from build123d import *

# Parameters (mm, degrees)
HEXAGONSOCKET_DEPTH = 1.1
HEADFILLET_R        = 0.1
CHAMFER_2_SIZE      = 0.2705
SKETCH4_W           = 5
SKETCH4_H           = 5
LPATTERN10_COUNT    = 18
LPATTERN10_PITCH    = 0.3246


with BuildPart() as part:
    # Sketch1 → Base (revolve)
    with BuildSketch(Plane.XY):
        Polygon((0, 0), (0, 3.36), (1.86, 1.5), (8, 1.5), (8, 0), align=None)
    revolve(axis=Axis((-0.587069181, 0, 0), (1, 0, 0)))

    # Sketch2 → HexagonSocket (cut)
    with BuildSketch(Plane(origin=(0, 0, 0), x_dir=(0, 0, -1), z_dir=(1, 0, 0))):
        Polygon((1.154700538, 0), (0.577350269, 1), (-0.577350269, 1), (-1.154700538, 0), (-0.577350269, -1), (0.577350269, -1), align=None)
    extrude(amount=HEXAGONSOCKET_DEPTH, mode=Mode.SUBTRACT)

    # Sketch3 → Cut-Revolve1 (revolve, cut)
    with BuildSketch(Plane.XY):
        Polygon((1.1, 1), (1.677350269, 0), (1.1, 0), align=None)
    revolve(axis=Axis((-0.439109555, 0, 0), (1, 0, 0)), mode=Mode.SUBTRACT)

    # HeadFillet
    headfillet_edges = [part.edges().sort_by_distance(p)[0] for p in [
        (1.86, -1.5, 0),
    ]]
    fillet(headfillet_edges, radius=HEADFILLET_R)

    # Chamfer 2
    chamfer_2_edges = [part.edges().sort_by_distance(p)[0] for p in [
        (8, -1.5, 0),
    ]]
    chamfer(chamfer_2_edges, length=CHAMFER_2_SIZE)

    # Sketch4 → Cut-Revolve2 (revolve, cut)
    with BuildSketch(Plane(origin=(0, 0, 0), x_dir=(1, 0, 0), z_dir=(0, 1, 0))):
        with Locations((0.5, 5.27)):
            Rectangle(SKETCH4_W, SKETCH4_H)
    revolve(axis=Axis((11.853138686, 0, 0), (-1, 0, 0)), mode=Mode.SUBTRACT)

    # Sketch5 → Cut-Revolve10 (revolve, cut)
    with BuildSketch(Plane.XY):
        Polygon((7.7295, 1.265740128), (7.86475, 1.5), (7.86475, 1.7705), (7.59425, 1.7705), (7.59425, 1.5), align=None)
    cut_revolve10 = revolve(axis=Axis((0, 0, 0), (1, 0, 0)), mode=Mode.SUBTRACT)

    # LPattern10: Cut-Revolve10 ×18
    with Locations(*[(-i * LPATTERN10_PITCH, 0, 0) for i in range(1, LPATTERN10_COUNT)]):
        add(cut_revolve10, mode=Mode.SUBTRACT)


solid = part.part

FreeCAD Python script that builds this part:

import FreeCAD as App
import Part
import Sketcher
from FreeCAD import Vector
Q = App.Units.Quantity


def edges_at(feature, points):
    """Names of the edges that pass closest to the given points."""
    edges = feature.Shape.Edges
    near = lambda p: min(range(len(edges)), key=lambda i: edges[i].distToShape(Part.Vertex(*p))[0])
    return sorted({f"Edge{near(p) + 1}" for p in points})


def add_polygon(sketch, points):
    """Adds a closed chain of lines whose ends are joined by coincident constraints."""
    first, n = sketch.GeometryCount, len(points)
    for a, b in zip(points, points[1:] + points[:1]):
        sketch.addGeometry(Part.LineSegment(App.Vector(*a, 0), App.Vector(*b, 0)), False)
    for i in range(n):
        sketch.addConstraint(Sketcher.Constraint("Coincident", first + i, 2, first + (i + 1) % n, 1))

doc = App.newDocument("Part")
params = doc.addObject("Spreadsheet::Sheet", "Params")
for row, (alias, value) in enumerate([
    ("sketch1_width", "8 mm"),
    ("sketch1_height", "1.5 mm"),
    ("sketch1_width2", "6.14 mm"),
    ("revolution_angle", "360 deg"),
    ("pocket1_length", "1.1 mm"),
    ("sketch3_height", "1 mm"),
    ("groove_angle", "360 deg"),
    ("fillet_radius", "0.1 mm"),
    ("chamfer_size", "0.2705 mm"),
    ("sketch4_width", "5 mm"),
    ("groove2_angle", "360 deg"),
    ("groove3_angle", "360 deg"),
    ("linearpattern_pitch", "0.3246 mm"),
], start=1):
    params.set(f"A{row}", alias)
    params.set(f"B{row}", "=" + value)
    params.setAlias(f"B{row}", alias)

body = doc.addObject("PartDesign::Body", "Body")

# Sketch on XY plane
sketch1 = body.newObject("Sketcher::SketchObject", "Sketch")
sketch1.AttachmentSupport = (doc.getObject("XY_Plane"), [""])
sketch1.MapMode = "FlatFace"
add_polygon(sketch1, [(0, 3.4), (0, 0), (8, 0), (8, 1.5), (1.9, 1.5)])  # lines 0-4
sketch1.addConstraint(Sketcher.Constraint("Vertical", 0))
sketch1.addConstraint(Sketcher.Constraint("Horizontal", 1))
sketch1.addConstraint(Sketcher.Constraint("Vertical", 2))
sketch1.addConstraint(Sketcher.Constraint("Horizontal", 3))
sketch1.addConstraint(Sketcher.Constraint("Coincident", 0, 2, -1, 1))
sketch1.addConstraint(Sketcher.Constraint("DistanceX", 1, 1, 1, 2, 8.0))
sketch1.addConstraint(Sketcher.Constraint("Angle", 4, Q("135 deg")))
sketch1.addConstraint(Sketcher.Constraint("DistanceY", 2, 1, 2, 2, 1.5))
sketch1.addConstraint(Sketcher.Constraint("DistanceX", 3, 2, 3, 1, 6.14))
sketch1.setExpression("Constraints[10]", "Params.sketch1_width")
sketch1.setExpression("Constraints[12]", "Params.sketch1_height")
sketch1.setExpression("Constraints[13]", "Params.sketch1_width2")
revolution = body.newObject("PartDesign::Revolution", "Revolution")
revolution.Profile = sketch1
revolution.ReferenceAxis = (sketch1, ["H_Axis"])
revolution.setExpression("Angle", "Params.revolution_angle")

# Sketch on YZ plane
sketch2 = body.newObject("Sketcher::SketchObject", "Sketch001")
sketch2.AttachmentSupport = (doc.getObject("YZ_Plane"), [""])
sketch2.MapMode = "FlatFace"
add_polygon(sketch2, [(0, -1.2), (1, -0.6), (1, 0.6), (0, 1.2), (-1, 0.6), (-1, -0.6)])  # lines 0-5
sketch2.addConstraint(Sketcher.Constraint("Vertical", 1))
sketch2.addConstraint(Sketcher.Constraint("Vertical", 4))
sketch2.addConstraint(Sketcher.Constraint("Symmetric", 0, 2, 3, 2, -1, 1))
sketch2.addConstraint(Sketcher.Constraint("Symmetric", 2, 2, 5, 2, -1, 1))
sketch2.addConstraint(Sketcher.Constraint("PointOnObject", 2, 2, -2))
sketch2.addConstraint(Sketcher.Constraint("Parallel", 2, 5))
sketch2.addConstraint(Sketcher.Constraint("Horizontal", 1, 2, 3, 2))
sketch2.addConstraint(Sketcher.Constraint("Angle", 0, Q("30 deg")))
sketch2.addConstraint(Sketcher.Constraint("DistanceX", -1, 1, 0, 2, 1.0))
sketch2.addConstraint(Sketcher.Constraint("DistanceY", 1, 1, 1, 2, 1.154701))
pocket1 = body.newObject("PartDesign::Pocket", "Pocket")
pocket1.Profile = sketch2
pocket1.setExpression("Length", "Params.pocket1_length")
pocket1.Reversed = True

# Sketch on XY plane
sketch3 = body.newObject("Sketcher::SketchObject", "Sketch002")
sketch3.AttachmentSupport = (doc.getObject("XY_Plane"), [""])
sketch3.MapMode = "FlatFace"
add_polygon(sketch3, [(1.7, 0), (1.1, 1), (1.1, 0)])  # lines 0-2
sketch3.addConstraint(Sketcher.Constraint("Vertical", 1))
sketch3.addConstraint(Sketcher.Constraint("Horizontal", 2))
sketch3.addConstraint(Sketcher.Constraint("PointOnObject", 1, 2, -1))
sketch3.addConstraint(Sketcher.Constraint("DistanceY", 1, 2, 1, 1, 1.0))
sketch3.addConstraint(Sketcher.Constraint("Angle", 0, Q("120 deg")))
sketch3.addConstraint(Sketcher.Constraint("DistanceX", -1, 1, 0, 2, 1.1))
sketch3.setExpression("Constraints[6]", "Params.sketch3_height")
groove = body.newObject("PartDesign::Groove", "Groove")
groove.Profile = sketch3
groove.ReferenceAxis = (sketch3, ["H_Axis"])
groove.setExpression("Angle", "Params.groove_angle")
doc.recompute()

fillet = body.newObject("PartDesign::Fillet", "Fillet")
fillet.Base = (groove, edges_at(groove, [(1.86, -1.5, 0)]))
fillet.setExpression("Radius", "Params.fillet_radius")
doc.recompute()

chamfer = body.newObject("PartDesign::Chamfer", "Chamfer")
chamfer.Base = (fillet, edges_at(fillet, [(8, -1.5, 0)]))
chamfer.setExpression("Size", "Params.chamfer_size")

# Sketch on XZ plane
sketch4 = body.newObject("Sketcher::SketchObject", "Sketch003")
sketch4.AttachmentSupport = (doc.getObject("XZ_Plane"), [""])
sketch4.MapMode = "FlatFace"
add_polygon(sketch4, [(-2, -8), (-2, -3), (3, -3), (3, -8)])  # lines 0-3
sketch4.addConstraint(Sketcher.Constraint("Vertical", 0))
sketch4.addConstraint(Sketcher.Constraint("Horizontal", 1))
sketch4.addConstraint(Sketcher.Constraint("Vertical", 2))
sketch4.addConstraint(Sketcher.Constraint("Horizontal", 3))
sketch4.addConstraint(Sketcher.Constraint("Equal", 3, 0))
sketch4.addConstraint(Sketcher.Constraint("DistanceX", 1, 1, 1, 2, 5.0))
sketch4.addConstraint(Sketcher.Constraint("DistanceX", 0, 2, -1, 1, 2.0))
sketch4.addConstraint(Sketcher.Constraint("DistanceY", 0, 2, -1, 1, 2.77))
sketch4.setExpression("Constraints[9]", "Params.sketch4_width")
groove2 = body.newObject("PartDesign::Groove", "Groove001")
groove2.Profile = sketch4
groove2.ReferenceAxis = (sketch4, ["H_Axis"])
groove2.setExpression("Angle", "Params.groove2_angle")

# Sketch on XY plane
sketch5 = body.newObject("Sketcher::SketchObject", "Sketch004")
sketch5.AttachmentSupport = (doc.getObject("XY_Plane"), [""])
sketch5.MapMode = "FlatFace"
add_polygon(sketch5, [(7.73, 1.27), (7.86, 1.5), (7.86, 1.77), (7.59, 1.77), (7.59, 1.5)])  # lines 0-4
sketch5.addConstraint(Sketcher.Constraint("Vertical", 1))
sketch5.addConstraint(Sketcher.Constraint("Horizontal", 2))
sketch5.addConstraint(Sketcher.Constraint("Vertical", 3))
sketch5.addConstraint(Sketcher.Constraint("Horizontal", 0, 2, 3, 2))
sketch5.addConstraint(Sketcher.Constraint("Equal", 2, 1))
sketch5.addConstraint(Sketcher.Constraint("Equal", 0, 4))
sketch5.addConstraint(Sketcher.Constraint("Angle", 0, Q("60 deg")))
sketch5.addConstraint(Sketcher.Constraint("DistanceY", -1, 1, 0, 2, 1.5))
sketch5.addConstraint(Sketcher.Constraint("DistanceX", 2, 2, 2, 1, 0.2705))
sketch5.addConstraint(Sketcher.Constraint("DistanceX", -1, 1, 4, 2, 7.7295))
groove3 = body.newObject("PartDesign::Groove", "Groove002")
groove3.Profile = sketch5
groove3.ReferenceAxis = (sketch5, ["H_Axis"])
groove3.setExpression("Angle", "Params.groove3_angle")
doc.recompute()

linearpattern = body.newObject("PartDesign::LinearPattern", "LinearPattern")
linearpattern.Originals = [groove3]
linearpattern.Direction = (doc.getObject("X_Axis"), [""])
linearpattern.Mode = "offset"
linearpattern.setExpression("Offset", "Params.linearpattern_pitch")
linearpattern.Occurrences = 18
linearpattern.Reversed = True
body.Tip = linearpattern

doc.recompute()
